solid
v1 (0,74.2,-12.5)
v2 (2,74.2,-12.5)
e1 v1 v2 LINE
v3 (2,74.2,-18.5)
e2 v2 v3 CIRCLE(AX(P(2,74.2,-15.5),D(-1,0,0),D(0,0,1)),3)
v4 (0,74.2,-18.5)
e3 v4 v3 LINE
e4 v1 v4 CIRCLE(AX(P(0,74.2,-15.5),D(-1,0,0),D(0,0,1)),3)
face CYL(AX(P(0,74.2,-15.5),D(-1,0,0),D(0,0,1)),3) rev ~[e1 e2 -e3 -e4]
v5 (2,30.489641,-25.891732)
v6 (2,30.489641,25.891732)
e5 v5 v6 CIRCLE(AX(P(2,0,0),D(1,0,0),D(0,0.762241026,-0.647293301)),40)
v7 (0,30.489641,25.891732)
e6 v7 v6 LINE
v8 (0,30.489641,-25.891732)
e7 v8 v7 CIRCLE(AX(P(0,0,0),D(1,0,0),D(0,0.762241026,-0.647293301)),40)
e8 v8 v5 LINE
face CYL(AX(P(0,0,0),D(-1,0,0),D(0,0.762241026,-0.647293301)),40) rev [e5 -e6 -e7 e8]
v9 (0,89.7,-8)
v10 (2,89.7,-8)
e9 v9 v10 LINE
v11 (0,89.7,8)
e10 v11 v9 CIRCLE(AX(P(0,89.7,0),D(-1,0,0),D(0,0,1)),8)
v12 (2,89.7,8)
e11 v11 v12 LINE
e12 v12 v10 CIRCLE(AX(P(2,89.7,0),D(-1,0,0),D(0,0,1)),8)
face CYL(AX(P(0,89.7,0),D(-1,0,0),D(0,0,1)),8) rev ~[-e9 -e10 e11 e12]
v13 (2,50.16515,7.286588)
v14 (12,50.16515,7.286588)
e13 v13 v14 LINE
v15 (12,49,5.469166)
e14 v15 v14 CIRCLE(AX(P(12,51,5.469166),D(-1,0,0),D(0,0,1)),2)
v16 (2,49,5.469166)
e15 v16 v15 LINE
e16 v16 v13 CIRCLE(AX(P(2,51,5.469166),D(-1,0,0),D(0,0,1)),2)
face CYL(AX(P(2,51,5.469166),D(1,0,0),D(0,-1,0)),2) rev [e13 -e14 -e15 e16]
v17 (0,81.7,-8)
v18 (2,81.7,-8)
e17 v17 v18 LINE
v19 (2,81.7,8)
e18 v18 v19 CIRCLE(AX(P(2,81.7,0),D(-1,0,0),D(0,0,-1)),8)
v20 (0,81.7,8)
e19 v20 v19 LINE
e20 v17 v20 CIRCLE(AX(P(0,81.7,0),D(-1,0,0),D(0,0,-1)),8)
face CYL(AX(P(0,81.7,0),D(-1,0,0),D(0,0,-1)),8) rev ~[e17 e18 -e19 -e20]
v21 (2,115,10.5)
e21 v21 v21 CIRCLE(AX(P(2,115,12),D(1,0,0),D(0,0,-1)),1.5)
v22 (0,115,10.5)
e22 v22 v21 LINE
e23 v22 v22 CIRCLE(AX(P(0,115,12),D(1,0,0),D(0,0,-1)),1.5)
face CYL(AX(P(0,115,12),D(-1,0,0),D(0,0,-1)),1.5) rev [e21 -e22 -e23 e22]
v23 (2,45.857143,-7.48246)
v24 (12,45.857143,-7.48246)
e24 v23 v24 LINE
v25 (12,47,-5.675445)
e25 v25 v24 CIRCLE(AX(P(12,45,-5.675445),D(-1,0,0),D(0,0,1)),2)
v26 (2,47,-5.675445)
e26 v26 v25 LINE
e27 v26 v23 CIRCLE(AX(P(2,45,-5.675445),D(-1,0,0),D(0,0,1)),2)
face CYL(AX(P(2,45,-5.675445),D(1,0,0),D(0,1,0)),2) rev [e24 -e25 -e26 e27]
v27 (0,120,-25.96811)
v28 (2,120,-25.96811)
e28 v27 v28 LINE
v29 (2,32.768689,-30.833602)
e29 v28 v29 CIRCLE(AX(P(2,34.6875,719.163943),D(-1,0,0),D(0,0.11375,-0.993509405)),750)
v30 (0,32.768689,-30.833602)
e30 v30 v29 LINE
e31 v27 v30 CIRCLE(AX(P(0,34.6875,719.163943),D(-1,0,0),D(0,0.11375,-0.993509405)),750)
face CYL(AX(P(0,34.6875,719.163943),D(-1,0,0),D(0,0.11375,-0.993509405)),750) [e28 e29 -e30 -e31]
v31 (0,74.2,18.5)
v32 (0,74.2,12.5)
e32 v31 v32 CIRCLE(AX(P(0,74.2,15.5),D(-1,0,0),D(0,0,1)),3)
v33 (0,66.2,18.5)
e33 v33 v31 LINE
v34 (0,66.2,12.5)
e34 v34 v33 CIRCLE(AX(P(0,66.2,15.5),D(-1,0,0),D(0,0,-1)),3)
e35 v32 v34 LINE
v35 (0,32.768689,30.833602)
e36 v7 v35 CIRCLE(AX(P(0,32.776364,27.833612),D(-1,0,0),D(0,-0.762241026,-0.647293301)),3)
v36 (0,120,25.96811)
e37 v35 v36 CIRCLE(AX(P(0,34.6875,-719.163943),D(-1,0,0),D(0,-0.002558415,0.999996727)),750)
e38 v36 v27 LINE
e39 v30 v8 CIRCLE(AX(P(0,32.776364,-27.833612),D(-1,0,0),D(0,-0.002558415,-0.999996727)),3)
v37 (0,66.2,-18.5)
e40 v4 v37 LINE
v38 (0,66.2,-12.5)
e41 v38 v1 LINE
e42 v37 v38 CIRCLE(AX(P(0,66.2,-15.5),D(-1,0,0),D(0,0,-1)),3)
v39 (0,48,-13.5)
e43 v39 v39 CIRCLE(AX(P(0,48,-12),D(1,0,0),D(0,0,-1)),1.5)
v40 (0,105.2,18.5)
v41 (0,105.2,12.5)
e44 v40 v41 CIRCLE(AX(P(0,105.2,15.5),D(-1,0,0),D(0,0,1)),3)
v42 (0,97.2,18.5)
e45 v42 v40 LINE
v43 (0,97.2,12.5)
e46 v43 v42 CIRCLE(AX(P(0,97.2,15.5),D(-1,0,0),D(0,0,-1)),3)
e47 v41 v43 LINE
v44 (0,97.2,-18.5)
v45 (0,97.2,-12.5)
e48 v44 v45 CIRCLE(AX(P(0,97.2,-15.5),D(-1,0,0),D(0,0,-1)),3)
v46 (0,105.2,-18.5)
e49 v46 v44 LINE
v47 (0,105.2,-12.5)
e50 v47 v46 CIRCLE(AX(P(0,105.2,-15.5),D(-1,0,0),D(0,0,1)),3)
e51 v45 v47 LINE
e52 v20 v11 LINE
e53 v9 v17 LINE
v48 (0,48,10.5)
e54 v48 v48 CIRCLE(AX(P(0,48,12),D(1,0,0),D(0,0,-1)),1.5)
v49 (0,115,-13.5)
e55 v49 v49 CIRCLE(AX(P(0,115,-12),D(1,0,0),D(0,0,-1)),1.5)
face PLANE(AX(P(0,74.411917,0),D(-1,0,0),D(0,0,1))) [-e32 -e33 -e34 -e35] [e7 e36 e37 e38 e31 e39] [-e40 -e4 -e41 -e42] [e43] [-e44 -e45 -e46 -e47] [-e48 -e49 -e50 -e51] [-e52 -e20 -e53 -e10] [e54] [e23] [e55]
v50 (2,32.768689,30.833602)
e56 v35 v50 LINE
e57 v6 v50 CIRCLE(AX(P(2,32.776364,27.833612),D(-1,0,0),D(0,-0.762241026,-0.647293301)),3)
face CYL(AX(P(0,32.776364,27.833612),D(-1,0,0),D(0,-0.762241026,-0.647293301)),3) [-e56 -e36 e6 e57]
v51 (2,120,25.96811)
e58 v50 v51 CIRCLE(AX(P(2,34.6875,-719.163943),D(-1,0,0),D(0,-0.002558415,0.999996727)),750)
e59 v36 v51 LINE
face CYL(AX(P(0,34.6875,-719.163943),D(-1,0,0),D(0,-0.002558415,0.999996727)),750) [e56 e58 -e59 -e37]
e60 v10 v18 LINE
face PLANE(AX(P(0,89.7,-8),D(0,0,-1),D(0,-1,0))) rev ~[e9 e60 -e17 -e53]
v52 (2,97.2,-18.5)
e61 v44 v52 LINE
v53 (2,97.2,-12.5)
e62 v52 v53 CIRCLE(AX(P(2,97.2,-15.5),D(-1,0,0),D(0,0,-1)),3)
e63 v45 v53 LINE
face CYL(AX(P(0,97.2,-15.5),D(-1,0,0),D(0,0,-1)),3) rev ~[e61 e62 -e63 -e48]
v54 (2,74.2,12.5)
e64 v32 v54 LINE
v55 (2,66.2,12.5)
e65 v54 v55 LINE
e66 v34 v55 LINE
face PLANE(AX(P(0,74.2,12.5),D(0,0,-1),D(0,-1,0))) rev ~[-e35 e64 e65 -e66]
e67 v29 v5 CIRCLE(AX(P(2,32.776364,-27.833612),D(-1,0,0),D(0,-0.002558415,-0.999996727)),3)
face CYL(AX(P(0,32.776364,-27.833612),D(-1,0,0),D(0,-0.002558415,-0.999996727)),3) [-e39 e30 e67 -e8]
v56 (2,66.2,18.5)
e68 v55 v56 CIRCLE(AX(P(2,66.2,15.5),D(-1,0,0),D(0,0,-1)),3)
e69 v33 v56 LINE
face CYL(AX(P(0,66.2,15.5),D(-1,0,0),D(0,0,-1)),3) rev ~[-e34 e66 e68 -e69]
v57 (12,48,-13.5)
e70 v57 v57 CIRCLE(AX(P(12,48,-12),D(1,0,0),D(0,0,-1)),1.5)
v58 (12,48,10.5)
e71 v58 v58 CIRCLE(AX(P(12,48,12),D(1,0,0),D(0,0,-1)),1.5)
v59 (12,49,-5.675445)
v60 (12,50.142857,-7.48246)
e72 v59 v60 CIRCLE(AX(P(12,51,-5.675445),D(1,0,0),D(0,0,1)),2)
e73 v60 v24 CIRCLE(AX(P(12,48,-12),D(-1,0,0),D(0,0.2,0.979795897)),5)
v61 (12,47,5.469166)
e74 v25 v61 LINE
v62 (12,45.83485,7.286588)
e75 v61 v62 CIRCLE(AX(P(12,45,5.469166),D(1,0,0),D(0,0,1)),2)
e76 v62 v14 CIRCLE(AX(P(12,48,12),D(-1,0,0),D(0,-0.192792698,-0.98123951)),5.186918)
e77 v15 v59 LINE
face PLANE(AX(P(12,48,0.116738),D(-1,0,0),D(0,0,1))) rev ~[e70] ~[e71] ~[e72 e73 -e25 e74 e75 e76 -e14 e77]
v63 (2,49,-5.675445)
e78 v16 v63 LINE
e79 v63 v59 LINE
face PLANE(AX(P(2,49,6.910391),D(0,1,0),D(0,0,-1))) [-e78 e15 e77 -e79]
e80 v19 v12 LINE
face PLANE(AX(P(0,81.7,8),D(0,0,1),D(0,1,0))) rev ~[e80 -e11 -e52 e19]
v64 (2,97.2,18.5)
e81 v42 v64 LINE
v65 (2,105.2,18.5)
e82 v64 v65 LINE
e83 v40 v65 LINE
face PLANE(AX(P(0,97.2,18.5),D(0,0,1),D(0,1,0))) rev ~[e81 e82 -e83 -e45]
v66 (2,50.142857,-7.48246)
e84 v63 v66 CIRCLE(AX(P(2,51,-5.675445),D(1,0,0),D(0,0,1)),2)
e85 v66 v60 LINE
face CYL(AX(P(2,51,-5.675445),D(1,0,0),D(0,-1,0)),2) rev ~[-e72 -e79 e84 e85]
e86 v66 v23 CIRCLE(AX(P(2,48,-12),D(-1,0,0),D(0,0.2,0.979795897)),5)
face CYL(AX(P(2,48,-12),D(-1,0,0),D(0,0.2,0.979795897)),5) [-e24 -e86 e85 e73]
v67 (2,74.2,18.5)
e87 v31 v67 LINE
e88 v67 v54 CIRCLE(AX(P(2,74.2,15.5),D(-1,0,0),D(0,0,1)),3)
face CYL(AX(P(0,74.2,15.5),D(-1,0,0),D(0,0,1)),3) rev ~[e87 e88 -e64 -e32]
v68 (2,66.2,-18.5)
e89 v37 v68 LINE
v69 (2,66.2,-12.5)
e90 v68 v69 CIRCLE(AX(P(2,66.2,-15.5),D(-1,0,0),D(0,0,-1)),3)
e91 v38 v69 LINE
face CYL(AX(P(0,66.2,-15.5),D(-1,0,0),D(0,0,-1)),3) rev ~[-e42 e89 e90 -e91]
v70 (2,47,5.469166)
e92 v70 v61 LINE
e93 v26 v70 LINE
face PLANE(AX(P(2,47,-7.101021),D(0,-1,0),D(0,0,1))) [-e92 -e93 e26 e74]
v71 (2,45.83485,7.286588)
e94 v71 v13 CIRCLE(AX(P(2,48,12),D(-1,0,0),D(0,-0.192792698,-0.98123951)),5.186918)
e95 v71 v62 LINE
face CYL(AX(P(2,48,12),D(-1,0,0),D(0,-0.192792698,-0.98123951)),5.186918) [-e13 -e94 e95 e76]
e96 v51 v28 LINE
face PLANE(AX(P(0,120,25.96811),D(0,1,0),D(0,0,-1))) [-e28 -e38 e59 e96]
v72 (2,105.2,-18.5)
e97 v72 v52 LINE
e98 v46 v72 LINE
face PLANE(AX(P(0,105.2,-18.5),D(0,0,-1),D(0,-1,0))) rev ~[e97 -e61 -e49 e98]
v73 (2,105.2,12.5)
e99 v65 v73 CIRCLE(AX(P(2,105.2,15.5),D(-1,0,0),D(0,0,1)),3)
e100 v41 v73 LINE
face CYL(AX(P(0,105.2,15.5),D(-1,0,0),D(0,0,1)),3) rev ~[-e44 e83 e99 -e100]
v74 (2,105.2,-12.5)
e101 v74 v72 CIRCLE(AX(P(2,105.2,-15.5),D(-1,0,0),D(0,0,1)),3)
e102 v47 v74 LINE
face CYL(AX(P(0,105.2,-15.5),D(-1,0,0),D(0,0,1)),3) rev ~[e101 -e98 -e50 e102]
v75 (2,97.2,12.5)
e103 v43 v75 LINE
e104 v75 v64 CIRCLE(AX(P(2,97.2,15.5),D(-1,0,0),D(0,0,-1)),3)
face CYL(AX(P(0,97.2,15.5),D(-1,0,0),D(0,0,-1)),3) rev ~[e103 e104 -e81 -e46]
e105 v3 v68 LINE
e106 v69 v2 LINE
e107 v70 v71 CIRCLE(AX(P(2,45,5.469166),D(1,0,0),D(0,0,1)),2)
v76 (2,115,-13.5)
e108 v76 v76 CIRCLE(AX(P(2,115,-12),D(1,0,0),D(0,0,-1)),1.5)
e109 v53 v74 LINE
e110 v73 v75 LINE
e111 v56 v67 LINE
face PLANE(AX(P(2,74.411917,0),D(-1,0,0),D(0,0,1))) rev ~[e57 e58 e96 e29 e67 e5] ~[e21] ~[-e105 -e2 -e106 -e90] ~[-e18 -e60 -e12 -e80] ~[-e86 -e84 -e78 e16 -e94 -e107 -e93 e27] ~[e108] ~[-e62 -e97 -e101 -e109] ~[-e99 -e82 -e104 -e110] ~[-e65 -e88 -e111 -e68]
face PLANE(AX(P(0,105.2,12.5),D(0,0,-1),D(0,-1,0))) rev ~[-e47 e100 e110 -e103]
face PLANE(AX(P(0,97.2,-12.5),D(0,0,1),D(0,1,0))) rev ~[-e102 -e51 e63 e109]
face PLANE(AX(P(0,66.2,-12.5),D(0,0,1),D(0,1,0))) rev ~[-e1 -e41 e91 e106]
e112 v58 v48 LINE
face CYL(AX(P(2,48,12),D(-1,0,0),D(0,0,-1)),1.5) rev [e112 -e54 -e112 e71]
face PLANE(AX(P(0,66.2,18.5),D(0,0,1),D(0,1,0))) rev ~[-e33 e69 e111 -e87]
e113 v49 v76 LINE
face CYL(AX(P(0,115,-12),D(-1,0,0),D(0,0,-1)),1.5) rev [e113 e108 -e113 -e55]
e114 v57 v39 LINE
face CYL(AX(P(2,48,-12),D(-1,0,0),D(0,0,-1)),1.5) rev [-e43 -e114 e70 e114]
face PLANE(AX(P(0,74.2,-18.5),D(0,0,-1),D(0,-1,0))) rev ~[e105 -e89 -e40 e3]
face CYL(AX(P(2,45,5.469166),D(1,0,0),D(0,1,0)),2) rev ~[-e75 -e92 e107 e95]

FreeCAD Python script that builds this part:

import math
import FreeCAD as App
import Part
import Sketcher

V = App.Vector


def edges_at(feature, points):
    """Names of the edges that pass closest to the given points."""
    edges = feature.Shape.Edges
    near = lambda p: min(range(len(edges)), key=lambda i: edges[i].distToShape(Part.Vertex(*p))[0])
    return sorted({f"Edge{near(p) + 1}" for p in points})

doc = App.newDocument("Part")
body = doc.addObject("PartDesign::Body", "Body")

# Sketch on YZ plane
sketch1 = body.newObject("Sketcher::SketchObject", "Sketch")
sketch1.AttachmentSupport = (doc.getObject("YZ_Plane"), [""])
sketch1.MapMode = "FlatFace"
sketch1.addGeometry([
    Part.LineSegment(V(120, -25.96811, 0), V(120, 25.96811, 0)),  # 0
    Part.ArcOfCircle(Part.Circle(V(34.6875, -719.163943, 0), V(0, 0, 1), 750), math.radians(83.468468), math.radians(90.146587)),  # 1
    Part.ArcOfCircle(Part.Circle(V(32.776364, 27.833612, 0), V(0, 0, 1), 3), math.radians(90.146587), math.radians(220.337838)),  # 2
    Part.ArcOfCircle(Part.Circle(V(0, 0, 0), V(0, 0, 1), 40), math.radians(-40.337838), math.radians(40.337838)),  # 3
    Part.ArcOfCircle(Part.Circle(V(32.776364, -27.833612, 0), V(0, 0, 1), 3), math.radians(139.662162), math.radians(269.853413)),  # 4
    Part.ArcOfCircle(Part.Circle(V(34.6875, 719.163943, 0), V(0, 0, 1), 750), math.radians(-90.146587), math.radians(-83.468468)),  # 5
    Part.Circle(V(48, -12, 0), V(0, 0, 1), 1.5),  # 6
    Part.LineSegment(V(74.2, -18.5, 0), V(66.2, -18.5, 0)),  # 7
    Part.ArcOfCircle(Part.Circle(V(66.2, -15.5, 0), V(0, 0, 1), 3), math.radians(90), math.radians(270)),  # 8
    Part.LineSegment(V(66.2, -12.5, 0), V(74.2, -12.5, 0)),  # 9
    Part.ArcOfCircle(Part.Circle(V(74.2, -15.5, 0), V(0, 0, 1), 3), math.radians(-90), math.radians(90)),  # 10
    Part.Circle(V(48, 12, 0), V(0, 0, 1), 1.5),  # 11
    Part.LineSegment(V(74.2, 12.5, 0), V(66.2, 12.5, 0)),  # 12
    Part.ArcOfCircle(Part.Circle(V(66.2, 15.5, 0), V(0, 0, 1), 3), math.radians(90), math.radians(270)),  # 13
    Part.LineSegment(V(66.2, 18.5, 0), V(74.2, 18.5, 0)),  # 14
    Part.ArcOfCircle(Part.Circle(V(74.2, 15.5, 0), V(0, 0, 1), 3), math.radians(-90), math.radians(90)),  # 15
    Part.LineSegment(V(105.2, -18.5, 0), V(97.2, -18.5, 0)),  # 16
    Part.ArcOfCircle(Part.Circle(V(97.2, -15.5, 0), V(0, 0, 1), 3), math.radians(90), math.radians(270)),  # 17
    Part.LineSegment(V(97.2, -12.5, 0), V(105.2, -12.5, 0)),  # 18
    Part.ArcOfCircle(Part.Circle(V(105.2, -15.5, 0), V(0, 0, 1), 3), math.radians(-90), math.radians(90)),  # 19
    Part.Circle(V(115, -12, 0), V(0, 0, 1), 1.5),  # 20
    Part.LineSegment(V(89.7, -8, 0), V(81.7, -8, 0)),  # 21
    Part.ArcOfCircle(Part.Circle(V(81.7, 0, 0), V(0, 0, 1), 8), math.radians(90), math.radians(270)),  # 22
    Part.LineSegment(V(81.7, 8, 0), V(89.7, 8, 0)),  # 23
    Part.ArcOfCircle(Part.Circle(V(89.7, 0, 0), V(0, 0, 1), 8), math.radians(-90), math.radians(90)),  # 24
    Part.LineSegment(V(105.2, 12.5, 0), V(97.2, 12.5, 0)),  # 25
    Part.ArcOfCircle(Part.Circle(V(97.2, 15.5, 0), V(0, 0, 1), 3), math.radians(90), math.radians(270)),  # 26
    Part.LineSegment(V(97.2, 18.5, 0), V(105.2, 18.5, 0)),  # 27
    Part.ArcOfCircle(Part.Circle(V(105.2, 15.5, 0), V(0, 0, 1), 3), math.radians(-90), math.radians(90)),  # 28
    Part.Circle(V(115, 12, 0), V(0, 0, 1), 1.5),  # 29
], False)
sketch1.addConstraint([
    Sketcher.Constraint("Coincident", 0, 2, 1, 1),
    Sketcher.Constraint("Tangent", 1, 2, 2, 1),
    Sketcher.Constraint("Tangent", 2, 2, 3, 2),
    Sketcher.Constraint("Tangent", 3, 1, 4, 1),
    Sketcher.Constraint("Tangent", 4, 2, 5, 1),
    Sketcher.Constraint("Coincident", 5, 2, 0, 1),
    Sketcher.Constraint("Tangent", 7, 2, 8, 2),
    Sketcher.Constraint("Tangent", 8, 1, 9, 1),
    Sketcher.Constraint("Tangent", 9, 2, 10, 2),
    Sketcher.Constraint("Tangent", 10, 1, 7, 1),
    Sketcher.Constraint("Tangent", 12, 2, 13, 2),
    Sketcher.Constraint("Tangent", 13, 1, 14, 1),
    Sketcher.Constraint("Tangent", 14, 2, 15, 2),
    Sketcher.Constraint("Tangent", 15, 1, 12, 1),
    Sketcher.Constraint("Tangent", 16, 2, 17, 2),
    Sketcher.Constraint("Tangent", 17, 1, 18, 1),
    Sketcher.Constraint("Tangent", 18, 2, 19, 2),
    Sketcher.Constraint("Tangent", 19, 1, 16, 1),
    Sketcher.Constraint("Tangent", 21, 2, 22, 2),
    Sketcher.Constraint("Tangent", 22, 1, 23, 1),
    Sketcher.Constraint("Tangent", 23, 2, 24, 2),
    Sketcher.Constraint("Tangent", 24, 1, 21, 1),
    Sketcher.Constraint("Tangent", 25, 2, 26, 2),
    Sketcher.Constraint("Tangent", 26, 1, 27, 1),
    Sketcher.Constraint("Tangent", 27, 2, 28, 2),
    Sketcher.Constraint("Tangent", 28, 1, 25, 1),
    Sketcher.Constraint("Vertical", 0),
    Sketcher.Constraint("Horizontal", 7),
    Sketcher.Constraint("Horizontal", 9),
    Sketcher.Constraint("Horizontal", 12),
    Sketcher.Constraint("Horizontal", 14),
    Sketcher.Constraint("Horizontal", 16),
    Sketcher.Constraint("Horizontal", 18),
    Sketcher.Constraint("Horizontal", 21),
    Sketcher.Constraint("Horizontal", 23),
    Sketcher.Constraint("Horizontal", 25),
    Sketcher.Constraint("Horizontal", 27),
    Sketcher.Constraint("Coincident", 3, 3, -1, 1),
    Sketcher.Constraint("Equal", 2, 4),
    Sketcher.Constraint("Equal", 1, 5),
    Sketcher.Constraint("Equal", 4, 8),
    Sketcher.Constraint("Equal", 6, 11),
    Sketcher.Constraint("Equal", 10, 13),
    Sketcher.Constraint("Equal", 15, 17),
    Sketcher.Constraint("Equal", 11, 20),
    Sketcher.Constraint("Equal", 19, 26),
    Sketcher.Constraint("Equal", 20, 29),
    Sketcher.Constraint("Symmetric", 1, 3, 5, 3, -1),
    Sketcher.Constraint("Symmetric", 6, 3, 11, 3, -1),
    Sketcher.Constraint("Symmetric", 8, 3, 13, 3, -1),
    Sketcher.Constraint("Symmetric", 17, 3, 26, 3, -1),
    Sketcher.Constraint("Symmetric", 20, 3, 29, 3, -1),
    Sketcher.Constraint("PointOnObject", 22, 3, -1),
    Sketcher.Constraint("Horizontal", 10, 3, 17, 3),
    Sketcher.Constraint("Horizontal", 6, 3, 20, 3),
    Sketcher.Constraint("Vertical", 10, 3, 15, 3),
    Sketcher.Constraint("Vertical", 19, 3, 28, 3),
    Sketcher.Constraint("Equal", 14, 16),
    Sketcher.Constraint("Equal", 18, 21),
    Sketcher.Constraint("Diameter", 6, 3.0),
    Sketcher.Constraint("Radius", 1, 750.0),
    Sketcher.Constraint("Radius", 2, 3.0),
    Sketcher.Constraint("Radius", 3, 40.0),
    Sketcher.Constraint("Radius", 22, 8.0),
    Sketcher.Constraint("DistanceX", 7, 2, 7, 1, 8.0),
    Sketcher.Constraint("DistanceX", -1, 1, 6, 3, 48.0),
    Sketcher.Constraint("DistanceY", 6, 3, -1, 1, 12.0),
    Sketcher.Constraint("DistanceX", -1, 1, 20, 3, 115.0),
    Sketcher.Constraint("DistanceX", -1, 1, 0, 2, 120.0),
    Sketcher.Constraint("DistanceY", 8, 3, 13, 3, 31.0),
    Sketcher.Constraint("DistanceX", 10, 3, 17, 3, 23.0),
    Sketcher.Constraint("DistanceX", -1, 1, 8, 3, 66.2),
    Sketcher.Constraint("DistanceX", -1, 1, 22, 3, 81.7),
    Sketcher.Constraint("DistanceY", 0, 1, 0, 2, 51.936221),
    Sketcher.Constraint("DistanceX", -1, 1, 1, 3, 34.6875),
])
pad1 = body.newObject("PartDesign::Pad", "Pad")
pad1.Profile = sketch1
pad1.Length = 2

# Sketch on YZ plane
sketch2 = body.newObject("Sketcher::SketchObject", "Sketch001")
sketch2.AttachmentSupport = (doc.getObject("YZ_Plane"), [""])
sketch2.MapMode = "FlatFace"
sketch2.AttachmentOffset = App.Placement(V(0, 0, 2), App.Rotation())
sketch2.addGeometry([
    Part.LineSegment(V(49, -7.101021, 0), V(49, 6.910391, 0)),  # 0
    Part.ArcOfCircle(Part.Circle(V(48, 12, 0), V(0, 0, 1), 5.186918), math.radians(-78.884192), math.radians(258.884192)),  # 1
    Part.LineSegment(V(47, 6.910391, 0), V(47, -7.101021, 0)),  # 2
    Part.ArcOfCircle(Part.Circle(V(48, -12, 0), V(0, 0, 1), 5), math.radians(101.536959), math.radians(438.463041)),  # 3
    Part.Circle(V(48, -12, 0), V(0, 0, 1), 1.5),  # 4
    Part.Circle(V(48, 12, 0), V(0, 0, 1), 1.5),  # 5
], False)
sketch2.addConstraint([
    Sketcher.Constraint("Coincident", 0, 2, 1, 1),
    Sketcher.Constraint("Coincident", 1, 2, 2, 1),
    Sketcher.Constraint("Coincident", 2, 2, 3, 1),
    Sketcher.Constraint("Coincident", 3, 2, 0, 1),
    Sketcher.Constraint("Vertical", 0),
    Sketcher.Constraint("Vertical", 2),
    Sketcher.Constraint("Coincident", 4, 3, 3, 3),
    Sketcher.Constraint("Coincident", 5, 3, 1, 3),
    Sketcher.Constraint("Equal", 4, 5),
    Sketcher.Constraint("Symmetric", 1, 3, 3, 3, -1),
    Sketcher.Constraint("Horizontal", 0, 2, 1, 2),
    Sketcher.Constraint("Diameter", 4, 3.0),
    Sketcher.Constraint("Radius", 3, 5.0),
    Sketcher.Constraint("DistanceX", -1, 1, 1, 3, 48.0),
    Sketcher.Constraint("DistanceY", -1, 1, 1, 3, 12.0),
    Sketcher.Constraint("DistanceX", -1, 1, 0, 2, 49.0),
    Sketcher.Constraint("Radius", 1, 5.186918),
])
pad2 = body.newObject("PartDesign::Pad", "Pad001")
pad2.Profile = sketch2
pad2.Length = 10
doc.recompute()

fillet = body.newObject("PartDesign::Fillet", "Fillet")
fillet.Base = (pad2, edges_at(pad2, [
    (7, 49, 6.91),
    (7, 47, 6.91),
    (7, 47, -7.101),
    (7, 49, -7.101),
]))
fillet.Radius = 2

doc.recompute()
